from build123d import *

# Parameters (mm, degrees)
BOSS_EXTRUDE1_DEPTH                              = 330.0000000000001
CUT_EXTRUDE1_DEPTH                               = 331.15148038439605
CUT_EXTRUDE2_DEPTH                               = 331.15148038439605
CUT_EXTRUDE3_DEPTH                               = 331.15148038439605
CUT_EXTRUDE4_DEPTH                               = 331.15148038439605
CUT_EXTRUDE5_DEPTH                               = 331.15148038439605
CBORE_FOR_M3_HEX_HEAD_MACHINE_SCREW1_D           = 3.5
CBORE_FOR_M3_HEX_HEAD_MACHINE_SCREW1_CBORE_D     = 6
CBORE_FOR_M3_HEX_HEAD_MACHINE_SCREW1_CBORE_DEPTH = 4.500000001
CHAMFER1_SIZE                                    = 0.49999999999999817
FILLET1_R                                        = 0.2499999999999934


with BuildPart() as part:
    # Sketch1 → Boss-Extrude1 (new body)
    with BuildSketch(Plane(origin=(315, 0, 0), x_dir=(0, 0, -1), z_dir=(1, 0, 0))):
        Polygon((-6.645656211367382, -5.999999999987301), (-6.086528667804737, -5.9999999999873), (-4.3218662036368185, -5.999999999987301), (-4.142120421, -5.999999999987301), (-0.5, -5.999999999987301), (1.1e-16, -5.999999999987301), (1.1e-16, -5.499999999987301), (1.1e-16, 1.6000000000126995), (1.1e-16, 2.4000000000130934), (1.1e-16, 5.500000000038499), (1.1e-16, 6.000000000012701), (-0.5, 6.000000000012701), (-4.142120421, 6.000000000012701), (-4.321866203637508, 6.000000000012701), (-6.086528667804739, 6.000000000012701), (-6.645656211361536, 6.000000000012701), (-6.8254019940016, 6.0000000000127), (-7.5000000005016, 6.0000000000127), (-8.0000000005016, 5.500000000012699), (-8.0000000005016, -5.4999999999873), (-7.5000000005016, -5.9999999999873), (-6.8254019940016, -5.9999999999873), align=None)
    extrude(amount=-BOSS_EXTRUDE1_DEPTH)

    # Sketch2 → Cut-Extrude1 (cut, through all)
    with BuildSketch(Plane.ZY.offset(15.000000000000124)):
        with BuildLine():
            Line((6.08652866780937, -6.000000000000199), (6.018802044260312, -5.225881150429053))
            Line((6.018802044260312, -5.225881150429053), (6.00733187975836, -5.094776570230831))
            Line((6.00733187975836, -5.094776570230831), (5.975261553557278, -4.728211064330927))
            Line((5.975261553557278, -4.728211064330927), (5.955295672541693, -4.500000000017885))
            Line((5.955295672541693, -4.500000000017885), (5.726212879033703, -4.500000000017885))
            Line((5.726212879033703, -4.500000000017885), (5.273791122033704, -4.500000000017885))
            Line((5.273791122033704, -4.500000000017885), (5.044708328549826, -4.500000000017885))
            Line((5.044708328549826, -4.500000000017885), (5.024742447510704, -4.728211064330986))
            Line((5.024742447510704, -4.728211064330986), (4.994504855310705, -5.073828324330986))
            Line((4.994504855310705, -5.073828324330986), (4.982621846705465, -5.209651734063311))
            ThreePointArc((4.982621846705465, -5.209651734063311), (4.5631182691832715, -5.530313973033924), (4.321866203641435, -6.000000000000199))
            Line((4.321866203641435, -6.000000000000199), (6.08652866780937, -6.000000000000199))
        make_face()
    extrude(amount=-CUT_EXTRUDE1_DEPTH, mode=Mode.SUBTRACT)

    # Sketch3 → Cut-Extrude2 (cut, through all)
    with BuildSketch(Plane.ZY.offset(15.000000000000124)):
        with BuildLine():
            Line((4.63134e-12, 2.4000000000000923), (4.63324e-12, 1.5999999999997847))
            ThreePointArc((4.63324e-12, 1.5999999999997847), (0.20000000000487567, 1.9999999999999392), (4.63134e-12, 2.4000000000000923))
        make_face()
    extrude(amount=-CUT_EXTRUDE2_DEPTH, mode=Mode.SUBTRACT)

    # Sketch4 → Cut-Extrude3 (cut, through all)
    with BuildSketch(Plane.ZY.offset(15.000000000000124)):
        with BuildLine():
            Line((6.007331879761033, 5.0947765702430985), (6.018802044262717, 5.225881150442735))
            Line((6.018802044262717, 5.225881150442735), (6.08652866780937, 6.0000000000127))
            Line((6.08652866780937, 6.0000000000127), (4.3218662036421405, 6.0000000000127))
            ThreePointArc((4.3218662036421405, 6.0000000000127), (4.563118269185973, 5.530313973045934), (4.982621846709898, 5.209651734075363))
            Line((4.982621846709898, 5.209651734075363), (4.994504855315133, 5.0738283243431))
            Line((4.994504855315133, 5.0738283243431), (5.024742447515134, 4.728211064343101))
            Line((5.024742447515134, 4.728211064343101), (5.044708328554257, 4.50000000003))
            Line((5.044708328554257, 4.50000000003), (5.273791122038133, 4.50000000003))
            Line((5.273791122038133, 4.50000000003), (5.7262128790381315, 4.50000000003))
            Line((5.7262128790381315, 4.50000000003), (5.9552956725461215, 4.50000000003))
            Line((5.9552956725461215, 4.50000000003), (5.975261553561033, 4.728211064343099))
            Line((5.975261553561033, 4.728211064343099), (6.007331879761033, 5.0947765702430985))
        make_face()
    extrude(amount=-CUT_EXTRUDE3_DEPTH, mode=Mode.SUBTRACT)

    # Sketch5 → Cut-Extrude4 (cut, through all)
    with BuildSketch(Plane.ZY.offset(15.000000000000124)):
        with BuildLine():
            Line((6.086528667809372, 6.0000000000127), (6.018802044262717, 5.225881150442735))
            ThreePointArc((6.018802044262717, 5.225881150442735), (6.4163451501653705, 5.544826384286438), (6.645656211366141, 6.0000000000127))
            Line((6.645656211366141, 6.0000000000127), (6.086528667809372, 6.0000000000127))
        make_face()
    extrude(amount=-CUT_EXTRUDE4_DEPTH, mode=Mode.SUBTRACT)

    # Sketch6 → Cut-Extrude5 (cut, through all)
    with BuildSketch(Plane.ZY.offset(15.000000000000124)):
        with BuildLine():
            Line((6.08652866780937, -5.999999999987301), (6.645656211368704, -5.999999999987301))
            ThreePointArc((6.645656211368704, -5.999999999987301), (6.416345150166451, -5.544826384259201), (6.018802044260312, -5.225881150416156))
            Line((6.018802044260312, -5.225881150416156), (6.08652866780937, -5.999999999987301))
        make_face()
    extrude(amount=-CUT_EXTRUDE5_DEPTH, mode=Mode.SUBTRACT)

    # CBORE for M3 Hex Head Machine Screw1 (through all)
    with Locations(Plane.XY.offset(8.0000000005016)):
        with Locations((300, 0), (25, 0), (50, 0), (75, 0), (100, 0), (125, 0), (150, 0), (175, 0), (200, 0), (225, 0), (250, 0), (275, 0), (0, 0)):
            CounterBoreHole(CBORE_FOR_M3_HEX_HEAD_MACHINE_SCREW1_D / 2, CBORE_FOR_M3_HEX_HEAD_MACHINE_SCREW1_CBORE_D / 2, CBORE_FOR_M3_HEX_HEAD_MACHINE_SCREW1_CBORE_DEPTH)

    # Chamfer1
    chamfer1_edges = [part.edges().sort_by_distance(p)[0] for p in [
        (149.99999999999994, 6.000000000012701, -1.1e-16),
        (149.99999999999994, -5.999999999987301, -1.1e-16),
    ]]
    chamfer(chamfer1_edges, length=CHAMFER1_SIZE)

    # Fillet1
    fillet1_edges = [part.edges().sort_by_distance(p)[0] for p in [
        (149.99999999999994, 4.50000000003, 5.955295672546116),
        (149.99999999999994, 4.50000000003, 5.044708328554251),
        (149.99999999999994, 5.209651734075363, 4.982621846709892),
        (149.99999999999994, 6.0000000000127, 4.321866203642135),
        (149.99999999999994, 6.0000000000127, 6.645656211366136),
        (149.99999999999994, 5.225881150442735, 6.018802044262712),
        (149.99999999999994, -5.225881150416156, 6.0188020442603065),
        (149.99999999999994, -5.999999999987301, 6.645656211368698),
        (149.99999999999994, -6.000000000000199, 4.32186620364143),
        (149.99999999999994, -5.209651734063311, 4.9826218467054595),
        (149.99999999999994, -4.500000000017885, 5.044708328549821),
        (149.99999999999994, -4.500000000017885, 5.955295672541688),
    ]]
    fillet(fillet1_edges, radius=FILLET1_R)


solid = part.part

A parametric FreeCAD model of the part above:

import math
import FreeCAD as App
import Part
import Sketcher
Q = App.Units.Quantity


def edges_at(feature, points):
    """Names of the edges that pass closest to the given points."""
    edges = feature.Shape.Edges
    near = lambda p: min(range(len(edges)), key=lambda i: edges[i].distToShape(Part.Vertex(*p))[0])
    return sorted({f"Edge{near(p) + 1}" for p in points})


def add_polygon(sketch, points):
    """Adds a closed chain of lines whose ends are joined by coincident constraints."""
    first, n = sketch.GeometryCount, len(points)
    for a, b in zip(points, points[1:] + points[:1]):
        sketch.addGeometry(Part.LineSegment(App.Vector(*a, 0), App.Vector(*b, 0)), False)
    for i in range(n):
        sketch.addConstraint(Sketcher.Constraint("Coincident", first + i, 2, first + (i + 1) % n, 1))

doc = App.newDocument("Part")
params = doc.addObject("Spreadsheet::Sheet", "Params")
for row, (alias, value) in enumerate([
    ("sketch1_width", "12 mm"),
    ("sketch1_width2", "11 mm"),
    ("sketch1_height", "7.5 mm"),
    ("pad1_length", "330 mm"),
    ("sketch2_radius", "1.2 mm"),
    ("sketch3_radius", "0.5 mm"),
    ("sketch3_width", "0.8 mm"),
    ("sketch4_radius", "1.2 mm"),
    ("sketch5_radius", "1.2 mm"),
    ("sketch6_radius", "1.2 mm"),
    ("sketch7_diameter", "3.5 mm"),
    ("hole_diameter", "3.5 mm"),
    ("hole_cbore_diameter", "6 mm"),
    ("hole_cbore_depth", "4.5 mm"),
    ("chamfer_size", "0.5 mm"),
    ("fillet_radius", "0.25 mm"),
], start=1):
    params.set(f"A{row}", alias)
    params.set(f"B{row}", "=" + value)
    params.setAlias(f"B{row}", alias)

body = doc.addObject("PartDesign::Body", "Body")

# Sketch on YZ plane
sketch1 = body.newObject("Sketcher::SketchObject", "Sketch")
sketch1.AttachmentSupport = (doc.getObject("YZ_Plane"), [""])
sketch1.MapMode = "FlatFace"
sketch1.AttachmentOffset = App.Placement(App.Vector(0, 0, 315), App.Rotation())
add_polygon(sketch1, [(-6, 0), (6, 0), (6, 7.5), (5.5, 8), (-5.5, 8), (-6, 7.5)])  # lines 0-5
sketch1.addConstraint([
    Sketcher.Constraint("Horizontal", 0),
    Sketcher.Constraint("Vertical", 1),
    Sketcher.Constraint("Horizontal", 3),
    Sketcher.Constraint("Vertical", 5),
    Sketcher.Constraint("Symmetric", 0, 2, 5, 2, -1, 1),
    Sketcher.Constraint("Perpendicular", 2, 4),
    Sketcher.Constraint("Horizontal", 1, 2, 4, 2),
    Sketcher.Constraint("Equal", 2, 4),
    Sketcher.Constraint("DistanceX", 0, 1, 0, 2, 12.0),
    Sketcher.Constraint("DistanceX", 3, 2, 3, 1, 11.0),
    Sketcher.Constraint("DistanceY", 1, 1, 1, 2, 7.5),
])
sketch1.setExpression("Constraints[14]", "Params.sketch1_width")
sketch1.setExpression("Constraints[15]", "Params.sketch1_width2")
sketch1.setExpression("Constraints[16]", "Params.sketch1_height")
pad1 = body.newObject("PartDesign::Pad", "Pad")
pad1.Profile = sketch1
pad1.setExpression("Length", "Params.pad1_length")
pad1.Reversed = True

# Sketch on YZ plane
sketch2 = body.newObject("Sketcher::SketchObject", "Sketch001")
sketch2.AttachmentSupport = (doc.getObject("YZ_Plane"), [""])
sketch2.MapMode = "FlatFace"
sketch2.AttachmentOffset = App.Placement(App.Vector(0, 0, -15), App.Rotation())
sketch2.addGeometry([
    Part.LineSegment(App.Vector(-6, 6.1, 0), App.Vector(-4.5, 6, 0)),  # 0
    Part.LineSegment(App.Vector(-4.5, 6, 0), App.Vector(-4.5, 5, 0)),  # 1
    Part.LineSegment(App.Vector(-4.5, 5, 0), App.Vector(-5.2, 5, 0)),  # 2
    Part.ArcOfCircle(Part.Circle(App.Vector(-6.3, 5.5, 0), App.Vector(0, 0, 1), 1.2), math.radians(-76), math.radians(-25)),  # 3
    Part.LineSegment(App.Vector(-6, 4.3, 0), App.Vector(-6, 6.1, 0)),  # 4
], False)
sketch2.addConstraint([
    Sketcher.Constraint("Coincident", 0, 2, 1, 1),
    Sketcher.Constraint("Coincident", 1, 2, 2, 1),
    Sketcher.Constraint("Coincident", 2, 2, 3, 2),
    Sketcher.Constraint("Coincident", 3, 1, 4, 1),
    Sketcher.Constraint("Coincident", 4, 2, 0, 1),
    Sketcher.Constraint("Vertical", 1),
    Sketcher.Constraint("Vertical", 4),
    Sketcher.Constraint("Radius", 3, 1.2),
    Sketcher.Constraint("Angle", 0, Q("-5 deg")),
    Sketcher.Constraint("Angle", 2, Q("-175 deg")),
    Sketcher.Constraint("DistanceX", 3, 1, -1, 1, 6.0),
    Sketcher.Constraint("DistanceX", 3, 3, -1, 1, 6.3),
    Sketcher.Constraint("DistanceX", 0, 2, -1, 1, 4.5),
    Sketcher.Constraint("DistanceY", 1, 2, 1, 1, 0.910587),
    Sketcher.Constraint("DistanceY", 4, 1, 4, 2, 1.764662),
    Sketcher.Constraint("DistanceY", -1, 1, 3, 3, 5.483761),
])
sketch2.setExpression("Constraints[7]", "Params.sketch2_radius")
pocket1 = body.newObject("PartDesign::Pocket", "Pocket")
pocket1.Profile = sketch2
pocket1.Type = "ThroughAll"
pocket1.Reversed = True

# Sketch on YZ plane
sketch3 = body.newObject("Sketcher::SketchObject", "Sketch002")
sketch3.AttachmentSupport = (doc.getObject("YZ_Plane"), [""])
sketch3.MapMode = "FlatFace"
sketch3.AttachmentOffset = App.Placement(App.Vector(0, 0, -15), App.Rotation())
sketch3.addGeometry([
    Part.LineSegment(App.Vector(2.4, 0, 0), App.Vector(1.6, 0, 0)),
    Part.ArcOfCircle(Part.Circle(App.Vector(2, -0.3, 0), App.Vector(0, 0, 1), 0.5), math.radians(37), math.radians(143)),
], False)
sketch3.addConstraint([
    Sketcher.Constraint("Coincident", 0, 1, 1, 1),
    Sketcher.Constraint("Coincident", 1, 2, 0, 2),
    Sketcher.Constraint("Horizontal", 0),
    Sketcher.Constraint("PointOnObject", 0, 1, -1),
    Sketcher.Constraint("Radius", 1, 0.5),
    Sketcher.Constraint("DistanceX", 0, 2, 0, 1, 0.8),
    Sketcher.Constraint("DistanceX", -1, 1, 1, 3, 2.0),
])
sketch3.setExpression("Constraints[4]", "Params.sketch3_radius")
sketch3.setExpression("Constraints[5]", "Params.sketch3_width")
pocket2 = body.newObject("PartDesign::Pocket", "Pocket001")
pocket2.Profile = sketch3
pocket2.Type = "ThroughAll"
pocket2.Reversed = True

# Sketch on YZ plane
sketch4 = body.newObject("Sketcher::SketchObject", "Sketch003")
sketch4.AttachmentSupport = (doc.getObject("YZ_Plane"), [""])
sketch4.MapMode = "FlatFace"
sketch4.AttachmentOffset = App.Placement(App.Vector(0, 0, -15), App.Rotation())
sketch4.addGeometry([
    Part.LineSegment(App.Vector(6, 6.1, 0), App.Vector(6, 4.3, 0)),  # 0
    Part.ArcOfCircle(Part.Circle(App.Vector(6.3, 5.5, 0), App.Vector(0, 0, 1), 1.2), math.radians(-155), math.radians(-104)),  # 1
    Part.LineSegment(App.Vector(5.2, 5, 0), App.Vector(4.5, 5, 0)),  # 2
    Part.LineSegment(App.Vector(4.5, 5, 0), App.Vector(4.5, 6, 0)),  # 3
    Part.LineSegment(App.Vector(4.5, 6, 0), App.Vector(6, 6.1, 0)),  # 4
], False)
sketch4.addConstraint([
    Sketcher.Constraint("Coincident", 0, 2, 1, 2),
    Sketcher.Constraint("Coincident", 1, 1, 2, 1),
    Sketcher.Constraint("Coincident", 2, 2, 3, 1),
    Sketcher.Constraint("Coincident", 3, 2, 4, 1),
    Sketcher.Constraint("Coincident", 4, 2, 0, 1),
    Sketcher.Constraint("Vertical", 0),
    Sketcher.Constraint("Vertical", 3),
    Sketcher.Constraint("Radius", 1, 1.2),
    Sketcher.Constraint("Angle", 2, Q("175 deg")),
    Sketcher.Constraint("Angle", 4, Q("5 deg")),
    Sketcher.Constraint("DistanceX", -1, 1, 0, 2, 6.0),
    Sketcher.Constraint("DistanceX", -1, 1, 1, 3, 6.3),
    Sketcher.Constraint("DistanceX", -1, 1, 2, 2, 4.5),
    Sketcher.Constraint("DistanceY", 0, 2, 0, 1, 1.764662),
    Sketcher.Constraint("DistanceY", 3, 1, 3, 2, 0.910587),
    Sketcher.Constraint("DistanceY", -1, 1, 1, 3, 5.483761),
])
sketch4.setExpression("Constraints[7]", "Params.sketch4_radius")
pocket3 = body.newObject("PartDesign::Pocket", "Pocket002")
pocket3.Profile = sketch4
pocket3.Type = "ThroughAll"
pocket3.Reversed = True

# Sketch on YZ plane
sketch5 = body.newObject("Sketcher::SketchObject", "Sketch004")
sketch5.AttachmentSupport = (doc.getObject("YZ_Plane"), [""])
sketch5.MapMode = "FlatFace"
sketch5.AttachmentOffset = App.Placement(App.Vector(0, 0, -15), App.Rotation())
sketch5.addGeometry([
    Part.LineSegment(App.Vector(6, 6.1, 0), App.Vector(5.2, 6, 0)),
    Part.ArcOfCircle(Part.Circle(App.Vector(6.3, 5.5, 0), App.Vector(0, 0, 1), 1.2), math.radians(104), math.radians(154)),
    Part.LineSegment(App.Vector(6, 6.6, 0), App.Vector(6, 6.1, 0)),
], False)
sketch5.addConstraint([
    Sketcher.Constraint("Coincident", 0, 2, 1, 2),
    Sketcher.Constraint("Coincident", 1, 1, 2, 1),
    Sketcher.Constraint("Coincident", 2, 2, 0, 1),
    Sketcher.Constraint("Vertical", 2),
    Sketcher.Constraint("Radius", 1, 1.2),
    Sketcher.Constraint("Angle", 0, Q("-175 deg")),
    Sketcher.Constraint("DistanceX", -1, 1, 1, 1, 6.0),
    Sketcher.Constraint("DistanceX", -1, 1, 1, 3, 6.3),
    Sketcher.Constraint("DistanceY", 2, 2, 2, 1, 0.559128),
    Sketcher.Constraint("DistanceY", -1, 1, 1, 3, 5.483761),
])
sketch5.setExpression("Constraints[4]", "Params.sketch5_radius")
pocket4 = body.newObject("PartDesign::Pocket", "Pocket003")
pocket4.Profile = sketch5
pocket4.Type = "ThroughAll"
pocket4.Reversed = True

# Sketch on YZ plane
sketch6 = body.newObject("Sketcher::SketchObject", "Sketch005")
sketch6.AttachmentSupport = (doc.getObject("YZ_Plane"), [""])
sketch6.MapMode = "FlatFace"
sketch6.AttachmentOffset = App.Placement(App.Vector(0, 0, -15), App.Rotation())
sketch6.addGeometry([
    Part.LineSegment(App.Vector(-6, 6.1, 0), App.Vector(-6, 6.6, 0)),
    Part.ArcOfCircle(Part.Circle(App.Vector(-6.3, 5.5, 0), App.Vector(0, 0, 1), 1.2), math.radians(26), math.radians(76)),
    Part.LineSegment(App.Vector(-5.2, 6, 0), App.Vector(-6, 6.1, 0)),
], False)
sketch6.addConstraint([
    Sketcher.Constraint("Coincident", 0, 2, 1, 2),
    Sketcher.Constraint("Coincident", 1, 1, 2, 1),
    Sketcher.Constraint("Coincident", 2, 2, 0, 1),
    Sketcher.Constraint("Vertical", 0),
    Sketcher.Constraint("Radius", 1, 1.2),
    Sketcher.Constraint("Angle", 2, Q("175 deg")),
    Sketcher.Constraint("DistanceX", 0, 2, -1, 1, 6.0),
    Sketcher.Constraint("DistanceX", 1, 3, -1, 1, 6.3),
    Sketcher.Constraint("DistanceY", 0, 1, 0, 2, 0.559128),
    Sketcher.Constraint("DistanceY", -1, 1, 1, 3, 5.483761),
])
sketch6.setExpression("Constraints[4]", "Params.sketch6_radius")
pocket5 = body.newObject("PartDesign::Pocket", "Pocket004")
pocket5.Profile = sketch6
pocket5.Type = "ThroughAll"
pocket5.Reversed = True

# Sketch on XY plane
sketch7 = body.newObject("Sketcher::SketchObject", "Sketch006")
sketch7.AttachmentSupport = (doc.getObject("XY_Plane"), [""])
sketch7.MapMode = "FlatFace"
sketch7.AttachmentOffset = App.Placement(App.Vector(0, 0, 8), App.Rotation())
sketch7.addGeometry([
    Part.Circle(App.Vector(300, 0, 0), App.Vector(0, 0, 1), 1.8),  # 0
    Part.Circle(App.Vector(25, 0, 0), App.Vector(0, 0, 1), 1.8),  # 1
    Part.Circle(App.Vector(50, 0, 0), App.Vector(0, 0, 1), 1.8),  # 2
    Part.Circle(App.Vector(75, 0, 0), App.Vector(0, 0, 1), 1.8),  # 3
    Part.Circle(App.Vector(100, 0, 0), App.Vector(0, 0, 1), 1.8),  # 4
    Part.Circle(App.Vector(125, 0, 0), App.Vector(0, 0, 1), 1.8),  # 5
    Part.Circle(App.Vector(150, 0, 0), App.Vector(0, 0, 1), 1.8),  # 6
    Part.Circle(App.Vector(175, 0, 0), App.Vector(0, 0, 1), 1.8),  # 7
    Part.Circle(App.Vector(200, 0, 0), App.Vector(0, 0, 1), 1.8),  # 8
    Part.Circle(App.Vector(225, 0, 0), App.Vector(0, 0, 1), 1.8),  # 9
    Part.Circle(App.Vector(250, 0, 0), App.Vector(0, 0, 1), 1.8),  # 10
    Part.Circle(App.Vector(275, 0, 0), App.Vector(0, 0, 1), 1.8),  # 11
    Part.Circle(App.Vector(0, 0, 0), App.Vector(0, 0, 1), 1.8),  # 12
], False)
sketch7.addConstraint([
    Sketcher.Constraint("Coincident", 12, 3, -1, 1),
    Sketcher.Constraint("Equal", 0, 1),
    Sketcher.Constraint("Equal", 1, 2),
    Sketcher.Constraint("Equal", 2, 3),
    Sketcher.Constraint("Equal", 3, 4),
    Sketcher.Constraint("Equal", 4, 5),
    Sketcher.Constraint("Equal", 5, 6),
    Sketcher.Constraint("Equal", 6, 7),
    Sketcher.Constraint("Equal", 7, 8),
    Sketcher.Constraint("Equal", 8, 9),
    Sketcher.Constraint("Equal", 9, 10),
    Sketcher.Constraint("Equal", 10, 11),
    Sketcher.Constraint("Equal", 11, 12),
    Sketcher.Constraint("PointOnObject", 0, 3, -1),
    Sketcher.Constraint("PointOnObject", 1, 3, -1),
    Sketcher.Constraint("PointOnObject", 2, 3, -1),
    Sketcher.Constraint("PointOnObject", 3, 3, -1),
    Sketcher.Constraint("PointOnObject", 4, 3, -1),
    Sketcher.Constraint("PointOnObject", 5, 3, -1),
    Sketcher.Constraint("PointOnObject", 6, 3, -1),
    Sketcher.Constraint("PointOnObject", 7, 3, -1),
    Sketcher.Constraint("PointOnObject", 8, 3, -1),
    Sketcher.Constraint("PointOnObject", 9, 3, -1),
    Sketcher.Constraint("PointOnObject", 10, 3, -1),
    Sketcher.Constraint("PointOnObject", 11, 3, -1),
    Sketcher.Constraint("Diameter", 0, 3.5),
    Sketcher.Constraint("DistanceX", -1, 1, 0, 3, 300.0),
    Sketcher.Constraint("DistanceX", -1, 1, 1, 3, 25.0),
    Sketcher.Constraint("DistanceX", -1, 1, 2, 3, 50.0),
    Sketcher.Constraint("DistanceX", -1, 1, 3, 3, 75.0),
    Sketcher.Constraint("DistanceX", -1, 1, 4, 3, 100.0),
    Sketcher.Constraint("DistanceX", -1, 1, 5, 3, 125.0),
    Sketcher.Constraint("DistanceX", -1, 1, 6, 3, 150.0),
    Sketcher.Constraint("DistanceX", -1, 1, 7, 3, 175.0),
    Sketcher.Constraint("DistanceX", -1, 1, 8, 3, 200.0),
    Sketcher.Constraint("DistanceX", -1, 1, 9, 3, 225.0),
    Sketcher.Constraint("DistanceX", -1, 1, 10, 3, 250.0),
    Sketcher.Constraint("DistanceX", -1, 1, 11, 3, 275.0),
])
sketch7.setExpression("Constraints[25]", "Params.sketch7_diameter")
doc.recompute()
hole = body.newObject("PartDesign::Hole", "Hole")
hole.Profile = sketch7
hole.ThreadType = "None"
hole.setExpression("Diameter", "Params.hole_diameter")
hole.DepthType = "ThroughAll"
hole.HoleCutType = "Counterbore"
hole.setExpression("HoleCutDiameter", "Params.hole_cbore_diameter")
hole.setExpression("HoleCutDepth", "Params.hole_cbore_depth")
doc.recompute()

chamfer = body.newObject("PartDesign::Chamfer", "Chamfer")
chamfer.Base = (hole, edges_at(hole, [(150, 6, 0), (150, -6, 0)]))
chamfer.setExpression("Size", "Params.chamfer_size")
doc.recompute()

fillet = body.newObject("PartDesign::Fillet", "Fillet")
fillet.Base = (chamfer, edges_at(chamfer, [
    (150, 4.5, 5.955),
    (150, 4.5, 5.045),
    (150, 5.21, 4.983),
    (150, 6, 4.322),
    (150, 6, 6.646),
    (150, 5.226, 6.019),
    (150, -5.226, 6.019),
    (150, -6, 6.646),
    (150, -6, 4.322),
    (150, -5.21, 4.983),
    (150, -4.5, 5.045),
    (150, -4.5, 5.955),
]))
fillet.setExpression("Radius", "Params.fillet_radius")

doc.recompute()
